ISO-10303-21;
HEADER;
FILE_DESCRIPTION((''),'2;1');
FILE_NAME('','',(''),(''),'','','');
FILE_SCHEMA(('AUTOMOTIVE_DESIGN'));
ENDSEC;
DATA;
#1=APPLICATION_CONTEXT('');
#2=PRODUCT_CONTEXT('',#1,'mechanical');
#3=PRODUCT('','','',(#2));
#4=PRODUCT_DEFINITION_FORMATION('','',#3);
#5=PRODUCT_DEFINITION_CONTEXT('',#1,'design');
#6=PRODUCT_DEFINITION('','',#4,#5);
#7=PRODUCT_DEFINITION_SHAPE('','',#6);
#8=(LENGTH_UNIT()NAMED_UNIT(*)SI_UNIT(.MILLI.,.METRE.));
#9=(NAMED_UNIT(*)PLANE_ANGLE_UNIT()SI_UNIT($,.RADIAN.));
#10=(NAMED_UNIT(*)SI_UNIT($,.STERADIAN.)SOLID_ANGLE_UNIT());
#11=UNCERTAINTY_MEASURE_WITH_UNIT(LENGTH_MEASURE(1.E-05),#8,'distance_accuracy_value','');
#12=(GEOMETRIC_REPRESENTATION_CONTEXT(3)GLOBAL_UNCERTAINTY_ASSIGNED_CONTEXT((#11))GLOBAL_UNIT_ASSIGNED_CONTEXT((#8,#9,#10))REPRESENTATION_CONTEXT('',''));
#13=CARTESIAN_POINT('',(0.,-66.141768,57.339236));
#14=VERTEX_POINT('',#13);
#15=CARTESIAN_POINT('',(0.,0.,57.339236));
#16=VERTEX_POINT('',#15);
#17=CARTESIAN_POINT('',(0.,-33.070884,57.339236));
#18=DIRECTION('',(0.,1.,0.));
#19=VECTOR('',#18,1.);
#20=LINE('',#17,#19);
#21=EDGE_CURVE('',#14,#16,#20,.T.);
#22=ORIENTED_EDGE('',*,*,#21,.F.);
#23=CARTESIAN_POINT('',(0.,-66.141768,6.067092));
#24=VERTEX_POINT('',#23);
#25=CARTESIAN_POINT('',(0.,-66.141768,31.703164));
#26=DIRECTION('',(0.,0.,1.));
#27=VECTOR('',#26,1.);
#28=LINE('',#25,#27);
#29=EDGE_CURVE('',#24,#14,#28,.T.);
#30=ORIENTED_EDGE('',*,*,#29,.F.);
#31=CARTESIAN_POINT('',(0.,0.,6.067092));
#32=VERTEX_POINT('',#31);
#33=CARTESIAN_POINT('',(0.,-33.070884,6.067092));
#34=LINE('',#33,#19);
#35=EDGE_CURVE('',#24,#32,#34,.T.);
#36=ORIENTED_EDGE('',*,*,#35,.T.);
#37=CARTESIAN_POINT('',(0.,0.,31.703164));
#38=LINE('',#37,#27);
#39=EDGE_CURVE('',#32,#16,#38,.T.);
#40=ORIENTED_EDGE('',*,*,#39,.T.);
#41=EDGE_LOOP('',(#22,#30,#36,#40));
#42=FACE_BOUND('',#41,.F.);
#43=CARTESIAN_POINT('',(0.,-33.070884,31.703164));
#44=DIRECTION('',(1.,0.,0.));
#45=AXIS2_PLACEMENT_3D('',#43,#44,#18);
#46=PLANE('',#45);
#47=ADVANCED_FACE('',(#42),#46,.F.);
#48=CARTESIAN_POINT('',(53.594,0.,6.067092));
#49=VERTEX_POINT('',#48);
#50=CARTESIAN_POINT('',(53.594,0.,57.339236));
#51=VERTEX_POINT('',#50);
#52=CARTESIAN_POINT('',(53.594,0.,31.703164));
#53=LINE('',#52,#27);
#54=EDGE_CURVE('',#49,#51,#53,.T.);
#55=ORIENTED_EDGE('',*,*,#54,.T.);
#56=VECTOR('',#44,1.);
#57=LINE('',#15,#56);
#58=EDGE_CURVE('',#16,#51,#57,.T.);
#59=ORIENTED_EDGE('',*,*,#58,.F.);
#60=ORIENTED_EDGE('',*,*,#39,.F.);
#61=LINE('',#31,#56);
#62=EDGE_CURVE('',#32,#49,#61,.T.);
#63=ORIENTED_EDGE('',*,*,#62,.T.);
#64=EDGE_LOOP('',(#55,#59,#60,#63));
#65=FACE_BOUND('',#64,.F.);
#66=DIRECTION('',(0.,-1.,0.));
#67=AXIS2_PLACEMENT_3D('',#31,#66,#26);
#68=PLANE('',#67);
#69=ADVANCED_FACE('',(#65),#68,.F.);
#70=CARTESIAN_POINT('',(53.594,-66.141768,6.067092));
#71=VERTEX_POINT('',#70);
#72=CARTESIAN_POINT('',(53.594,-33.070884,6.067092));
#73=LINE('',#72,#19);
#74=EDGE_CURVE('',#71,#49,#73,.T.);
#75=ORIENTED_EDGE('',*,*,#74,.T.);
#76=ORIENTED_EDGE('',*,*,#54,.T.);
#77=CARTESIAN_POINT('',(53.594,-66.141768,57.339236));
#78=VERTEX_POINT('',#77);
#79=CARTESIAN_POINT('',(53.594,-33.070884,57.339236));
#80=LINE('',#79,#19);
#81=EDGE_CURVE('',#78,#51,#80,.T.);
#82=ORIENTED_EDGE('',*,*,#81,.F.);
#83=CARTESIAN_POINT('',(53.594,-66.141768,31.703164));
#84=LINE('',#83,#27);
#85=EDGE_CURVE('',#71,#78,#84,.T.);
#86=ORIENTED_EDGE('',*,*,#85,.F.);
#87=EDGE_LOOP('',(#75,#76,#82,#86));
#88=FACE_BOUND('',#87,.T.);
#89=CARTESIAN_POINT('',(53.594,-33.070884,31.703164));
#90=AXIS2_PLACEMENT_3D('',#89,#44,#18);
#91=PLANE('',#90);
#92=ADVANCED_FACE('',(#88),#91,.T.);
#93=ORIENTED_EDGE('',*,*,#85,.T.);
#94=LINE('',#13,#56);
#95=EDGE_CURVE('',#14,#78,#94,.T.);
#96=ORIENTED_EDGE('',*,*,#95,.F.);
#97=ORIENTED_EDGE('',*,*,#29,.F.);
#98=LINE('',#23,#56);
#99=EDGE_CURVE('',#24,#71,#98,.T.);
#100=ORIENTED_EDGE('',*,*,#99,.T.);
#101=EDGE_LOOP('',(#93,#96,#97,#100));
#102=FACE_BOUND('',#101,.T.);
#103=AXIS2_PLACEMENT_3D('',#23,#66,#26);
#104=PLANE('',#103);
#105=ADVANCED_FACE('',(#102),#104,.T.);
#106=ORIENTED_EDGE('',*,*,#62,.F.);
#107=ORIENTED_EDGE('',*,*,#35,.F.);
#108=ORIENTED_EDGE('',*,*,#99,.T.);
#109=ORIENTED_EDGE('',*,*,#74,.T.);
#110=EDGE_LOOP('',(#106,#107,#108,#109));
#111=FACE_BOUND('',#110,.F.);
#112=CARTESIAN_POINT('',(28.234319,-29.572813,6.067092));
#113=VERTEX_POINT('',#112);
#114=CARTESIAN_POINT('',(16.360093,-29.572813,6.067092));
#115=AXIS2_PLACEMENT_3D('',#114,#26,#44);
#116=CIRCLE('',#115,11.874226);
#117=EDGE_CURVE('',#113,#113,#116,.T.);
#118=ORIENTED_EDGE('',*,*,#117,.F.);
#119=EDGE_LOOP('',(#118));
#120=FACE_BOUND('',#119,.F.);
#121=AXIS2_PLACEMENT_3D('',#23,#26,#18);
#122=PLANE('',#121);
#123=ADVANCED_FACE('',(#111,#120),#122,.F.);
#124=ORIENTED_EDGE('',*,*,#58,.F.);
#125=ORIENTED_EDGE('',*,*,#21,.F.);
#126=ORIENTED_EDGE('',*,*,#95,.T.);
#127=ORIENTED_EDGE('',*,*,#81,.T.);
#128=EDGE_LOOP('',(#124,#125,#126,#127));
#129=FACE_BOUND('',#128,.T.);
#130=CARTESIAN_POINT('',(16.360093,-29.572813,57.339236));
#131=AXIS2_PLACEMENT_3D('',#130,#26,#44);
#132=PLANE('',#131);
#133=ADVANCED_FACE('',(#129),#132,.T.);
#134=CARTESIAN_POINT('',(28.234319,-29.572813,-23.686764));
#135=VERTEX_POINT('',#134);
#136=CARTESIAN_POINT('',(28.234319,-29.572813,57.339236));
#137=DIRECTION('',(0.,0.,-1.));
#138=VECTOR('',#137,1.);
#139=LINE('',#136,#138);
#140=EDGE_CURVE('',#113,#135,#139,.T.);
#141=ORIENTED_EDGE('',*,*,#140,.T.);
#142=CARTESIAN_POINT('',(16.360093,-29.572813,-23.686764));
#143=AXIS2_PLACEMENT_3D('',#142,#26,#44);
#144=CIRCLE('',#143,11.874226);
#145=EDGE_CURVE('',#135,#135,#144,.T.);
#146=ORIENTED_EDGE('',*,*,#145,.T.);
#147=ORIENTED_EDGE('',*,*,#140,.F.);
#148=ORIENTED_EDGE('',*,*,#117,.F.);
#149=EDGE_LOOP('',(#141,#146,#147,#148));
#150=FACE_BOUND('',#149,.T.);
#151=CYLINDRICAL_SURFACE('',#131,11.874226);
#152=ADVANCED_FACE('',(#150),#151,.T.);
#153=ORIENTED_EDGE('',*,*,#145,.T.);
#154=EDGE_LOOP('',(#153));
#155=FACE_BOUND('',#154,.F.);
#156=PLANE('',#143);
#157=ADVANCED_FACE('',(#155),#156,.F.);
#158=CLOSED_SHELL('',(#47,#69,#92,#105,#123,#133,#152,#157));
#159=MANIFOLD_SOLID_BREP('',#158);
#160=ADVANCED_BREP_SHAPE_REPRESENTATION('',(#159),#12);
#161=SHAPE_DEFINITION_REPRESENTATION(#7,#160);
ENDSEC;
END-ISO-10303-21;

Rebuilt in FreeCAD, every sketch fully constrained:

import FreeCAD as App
import Part
import Sketcher

V = App.Vector


def add_polygon(sketch, points):
    """Adds a closed chain of lines whose ends are joined by coincident constraints."""
    first, n = sketch.GeometryCount, len(points)
    for a, b in zip(points, points[1:] + points[:1]):
        sketch.addGeometry(Part.LineSegment(App.Vector(*a, 0), App.Vector(*b, 0)), False)
    for i in range(n):
        sketch.addConstraint(Sketcher.Constraint("Coincident", first + i, 2, first + (i + 1) % n, 1))

doc = App.newDocument("Part")
params = doc.addObject("Spreadsheet::Sheet", "Params")
for row, (alias, value) in enumerate([
    ("pad1_length", "2.11 in"),
    ("pad2_length", "3.19 in"),
], start=1):
    params.set(f"A{row}", alias)
    params.set(f"B{row}", "=" + value)
    params.setAlias(f"B{row}", alias)

body = doc.addObject("PartDesign::Body", "Body")

# Sketch on YZ plane
sketch1 = body.newObject("Sketcher::SketchObject", "Sketch")
sketch1.AttachmentSupport = (doc.getObject("YZ_Plane"), [""])
sketch1.MapMode = "FlatFace"
add_polygon(sketch1, [(-66, 57), (-66, 6), (0, 6), (0, 57)])  # lines 0-3
sketch1.addConstraint([
    Sketcher.Constraint("Vertical", 0),
    Sketcher.Constraint("Horizontal", 1),
    Sketcher.Constraint("Vertical", 2),
    Sketcher.Constraint("Horizontal", 3),
    Sketcher.Constraint("PointOnObject", 1, 2, -2),
    Sketcher.Constraint("DistanceX", 1, 1, 1, 2, 66.141769),
    Sketcher.Constraint("DistanceY", 0, 2, 0, 1, 51.272144),
    Sketcher.Constraint("DistanceY", -1, 1, 0, 2, 6.067092),
])
pad1 = body.newObject("PartDesign::Pad", "Pad")
pad1.Profile = sketch1
pad1.setExpression("Length", "Params.pad1_length")

# Sketch on XY plane
sketch2 = body.newObject("Sketcher::SketchObject", "Sketch001")
sketch2.AttachmentSupport = (doc.getObject("XY_Plane"), [""])
sketch2.MapMode = "FlatFace"
sketch2.AttachmentOffset = App.Placement(V(0, 0, 57.339236), App.Rotation())
sketch2.addGeometry(Part.Circle(V(16, -30, 0), V(0, 0, 1), 12), False)
sketch2.addConstraint([
    Sketcher.Constraint("Diameter", 0, 23.748452),
    Sketcher.Constraint("DistanceX", -1, 1, 0, 3, 16.360093),
    Sketcher.Constraint("DistanceY", 0, 3, -1, 1, 29.572813),
])
pad2 = body.newObject("PartDesign::Pad", "Pad001")
pad2.Profile = sketch2
pad2.setExpression("Length", "Params.pad2_length")
pad2.Reversed = True

doc.recompute()
